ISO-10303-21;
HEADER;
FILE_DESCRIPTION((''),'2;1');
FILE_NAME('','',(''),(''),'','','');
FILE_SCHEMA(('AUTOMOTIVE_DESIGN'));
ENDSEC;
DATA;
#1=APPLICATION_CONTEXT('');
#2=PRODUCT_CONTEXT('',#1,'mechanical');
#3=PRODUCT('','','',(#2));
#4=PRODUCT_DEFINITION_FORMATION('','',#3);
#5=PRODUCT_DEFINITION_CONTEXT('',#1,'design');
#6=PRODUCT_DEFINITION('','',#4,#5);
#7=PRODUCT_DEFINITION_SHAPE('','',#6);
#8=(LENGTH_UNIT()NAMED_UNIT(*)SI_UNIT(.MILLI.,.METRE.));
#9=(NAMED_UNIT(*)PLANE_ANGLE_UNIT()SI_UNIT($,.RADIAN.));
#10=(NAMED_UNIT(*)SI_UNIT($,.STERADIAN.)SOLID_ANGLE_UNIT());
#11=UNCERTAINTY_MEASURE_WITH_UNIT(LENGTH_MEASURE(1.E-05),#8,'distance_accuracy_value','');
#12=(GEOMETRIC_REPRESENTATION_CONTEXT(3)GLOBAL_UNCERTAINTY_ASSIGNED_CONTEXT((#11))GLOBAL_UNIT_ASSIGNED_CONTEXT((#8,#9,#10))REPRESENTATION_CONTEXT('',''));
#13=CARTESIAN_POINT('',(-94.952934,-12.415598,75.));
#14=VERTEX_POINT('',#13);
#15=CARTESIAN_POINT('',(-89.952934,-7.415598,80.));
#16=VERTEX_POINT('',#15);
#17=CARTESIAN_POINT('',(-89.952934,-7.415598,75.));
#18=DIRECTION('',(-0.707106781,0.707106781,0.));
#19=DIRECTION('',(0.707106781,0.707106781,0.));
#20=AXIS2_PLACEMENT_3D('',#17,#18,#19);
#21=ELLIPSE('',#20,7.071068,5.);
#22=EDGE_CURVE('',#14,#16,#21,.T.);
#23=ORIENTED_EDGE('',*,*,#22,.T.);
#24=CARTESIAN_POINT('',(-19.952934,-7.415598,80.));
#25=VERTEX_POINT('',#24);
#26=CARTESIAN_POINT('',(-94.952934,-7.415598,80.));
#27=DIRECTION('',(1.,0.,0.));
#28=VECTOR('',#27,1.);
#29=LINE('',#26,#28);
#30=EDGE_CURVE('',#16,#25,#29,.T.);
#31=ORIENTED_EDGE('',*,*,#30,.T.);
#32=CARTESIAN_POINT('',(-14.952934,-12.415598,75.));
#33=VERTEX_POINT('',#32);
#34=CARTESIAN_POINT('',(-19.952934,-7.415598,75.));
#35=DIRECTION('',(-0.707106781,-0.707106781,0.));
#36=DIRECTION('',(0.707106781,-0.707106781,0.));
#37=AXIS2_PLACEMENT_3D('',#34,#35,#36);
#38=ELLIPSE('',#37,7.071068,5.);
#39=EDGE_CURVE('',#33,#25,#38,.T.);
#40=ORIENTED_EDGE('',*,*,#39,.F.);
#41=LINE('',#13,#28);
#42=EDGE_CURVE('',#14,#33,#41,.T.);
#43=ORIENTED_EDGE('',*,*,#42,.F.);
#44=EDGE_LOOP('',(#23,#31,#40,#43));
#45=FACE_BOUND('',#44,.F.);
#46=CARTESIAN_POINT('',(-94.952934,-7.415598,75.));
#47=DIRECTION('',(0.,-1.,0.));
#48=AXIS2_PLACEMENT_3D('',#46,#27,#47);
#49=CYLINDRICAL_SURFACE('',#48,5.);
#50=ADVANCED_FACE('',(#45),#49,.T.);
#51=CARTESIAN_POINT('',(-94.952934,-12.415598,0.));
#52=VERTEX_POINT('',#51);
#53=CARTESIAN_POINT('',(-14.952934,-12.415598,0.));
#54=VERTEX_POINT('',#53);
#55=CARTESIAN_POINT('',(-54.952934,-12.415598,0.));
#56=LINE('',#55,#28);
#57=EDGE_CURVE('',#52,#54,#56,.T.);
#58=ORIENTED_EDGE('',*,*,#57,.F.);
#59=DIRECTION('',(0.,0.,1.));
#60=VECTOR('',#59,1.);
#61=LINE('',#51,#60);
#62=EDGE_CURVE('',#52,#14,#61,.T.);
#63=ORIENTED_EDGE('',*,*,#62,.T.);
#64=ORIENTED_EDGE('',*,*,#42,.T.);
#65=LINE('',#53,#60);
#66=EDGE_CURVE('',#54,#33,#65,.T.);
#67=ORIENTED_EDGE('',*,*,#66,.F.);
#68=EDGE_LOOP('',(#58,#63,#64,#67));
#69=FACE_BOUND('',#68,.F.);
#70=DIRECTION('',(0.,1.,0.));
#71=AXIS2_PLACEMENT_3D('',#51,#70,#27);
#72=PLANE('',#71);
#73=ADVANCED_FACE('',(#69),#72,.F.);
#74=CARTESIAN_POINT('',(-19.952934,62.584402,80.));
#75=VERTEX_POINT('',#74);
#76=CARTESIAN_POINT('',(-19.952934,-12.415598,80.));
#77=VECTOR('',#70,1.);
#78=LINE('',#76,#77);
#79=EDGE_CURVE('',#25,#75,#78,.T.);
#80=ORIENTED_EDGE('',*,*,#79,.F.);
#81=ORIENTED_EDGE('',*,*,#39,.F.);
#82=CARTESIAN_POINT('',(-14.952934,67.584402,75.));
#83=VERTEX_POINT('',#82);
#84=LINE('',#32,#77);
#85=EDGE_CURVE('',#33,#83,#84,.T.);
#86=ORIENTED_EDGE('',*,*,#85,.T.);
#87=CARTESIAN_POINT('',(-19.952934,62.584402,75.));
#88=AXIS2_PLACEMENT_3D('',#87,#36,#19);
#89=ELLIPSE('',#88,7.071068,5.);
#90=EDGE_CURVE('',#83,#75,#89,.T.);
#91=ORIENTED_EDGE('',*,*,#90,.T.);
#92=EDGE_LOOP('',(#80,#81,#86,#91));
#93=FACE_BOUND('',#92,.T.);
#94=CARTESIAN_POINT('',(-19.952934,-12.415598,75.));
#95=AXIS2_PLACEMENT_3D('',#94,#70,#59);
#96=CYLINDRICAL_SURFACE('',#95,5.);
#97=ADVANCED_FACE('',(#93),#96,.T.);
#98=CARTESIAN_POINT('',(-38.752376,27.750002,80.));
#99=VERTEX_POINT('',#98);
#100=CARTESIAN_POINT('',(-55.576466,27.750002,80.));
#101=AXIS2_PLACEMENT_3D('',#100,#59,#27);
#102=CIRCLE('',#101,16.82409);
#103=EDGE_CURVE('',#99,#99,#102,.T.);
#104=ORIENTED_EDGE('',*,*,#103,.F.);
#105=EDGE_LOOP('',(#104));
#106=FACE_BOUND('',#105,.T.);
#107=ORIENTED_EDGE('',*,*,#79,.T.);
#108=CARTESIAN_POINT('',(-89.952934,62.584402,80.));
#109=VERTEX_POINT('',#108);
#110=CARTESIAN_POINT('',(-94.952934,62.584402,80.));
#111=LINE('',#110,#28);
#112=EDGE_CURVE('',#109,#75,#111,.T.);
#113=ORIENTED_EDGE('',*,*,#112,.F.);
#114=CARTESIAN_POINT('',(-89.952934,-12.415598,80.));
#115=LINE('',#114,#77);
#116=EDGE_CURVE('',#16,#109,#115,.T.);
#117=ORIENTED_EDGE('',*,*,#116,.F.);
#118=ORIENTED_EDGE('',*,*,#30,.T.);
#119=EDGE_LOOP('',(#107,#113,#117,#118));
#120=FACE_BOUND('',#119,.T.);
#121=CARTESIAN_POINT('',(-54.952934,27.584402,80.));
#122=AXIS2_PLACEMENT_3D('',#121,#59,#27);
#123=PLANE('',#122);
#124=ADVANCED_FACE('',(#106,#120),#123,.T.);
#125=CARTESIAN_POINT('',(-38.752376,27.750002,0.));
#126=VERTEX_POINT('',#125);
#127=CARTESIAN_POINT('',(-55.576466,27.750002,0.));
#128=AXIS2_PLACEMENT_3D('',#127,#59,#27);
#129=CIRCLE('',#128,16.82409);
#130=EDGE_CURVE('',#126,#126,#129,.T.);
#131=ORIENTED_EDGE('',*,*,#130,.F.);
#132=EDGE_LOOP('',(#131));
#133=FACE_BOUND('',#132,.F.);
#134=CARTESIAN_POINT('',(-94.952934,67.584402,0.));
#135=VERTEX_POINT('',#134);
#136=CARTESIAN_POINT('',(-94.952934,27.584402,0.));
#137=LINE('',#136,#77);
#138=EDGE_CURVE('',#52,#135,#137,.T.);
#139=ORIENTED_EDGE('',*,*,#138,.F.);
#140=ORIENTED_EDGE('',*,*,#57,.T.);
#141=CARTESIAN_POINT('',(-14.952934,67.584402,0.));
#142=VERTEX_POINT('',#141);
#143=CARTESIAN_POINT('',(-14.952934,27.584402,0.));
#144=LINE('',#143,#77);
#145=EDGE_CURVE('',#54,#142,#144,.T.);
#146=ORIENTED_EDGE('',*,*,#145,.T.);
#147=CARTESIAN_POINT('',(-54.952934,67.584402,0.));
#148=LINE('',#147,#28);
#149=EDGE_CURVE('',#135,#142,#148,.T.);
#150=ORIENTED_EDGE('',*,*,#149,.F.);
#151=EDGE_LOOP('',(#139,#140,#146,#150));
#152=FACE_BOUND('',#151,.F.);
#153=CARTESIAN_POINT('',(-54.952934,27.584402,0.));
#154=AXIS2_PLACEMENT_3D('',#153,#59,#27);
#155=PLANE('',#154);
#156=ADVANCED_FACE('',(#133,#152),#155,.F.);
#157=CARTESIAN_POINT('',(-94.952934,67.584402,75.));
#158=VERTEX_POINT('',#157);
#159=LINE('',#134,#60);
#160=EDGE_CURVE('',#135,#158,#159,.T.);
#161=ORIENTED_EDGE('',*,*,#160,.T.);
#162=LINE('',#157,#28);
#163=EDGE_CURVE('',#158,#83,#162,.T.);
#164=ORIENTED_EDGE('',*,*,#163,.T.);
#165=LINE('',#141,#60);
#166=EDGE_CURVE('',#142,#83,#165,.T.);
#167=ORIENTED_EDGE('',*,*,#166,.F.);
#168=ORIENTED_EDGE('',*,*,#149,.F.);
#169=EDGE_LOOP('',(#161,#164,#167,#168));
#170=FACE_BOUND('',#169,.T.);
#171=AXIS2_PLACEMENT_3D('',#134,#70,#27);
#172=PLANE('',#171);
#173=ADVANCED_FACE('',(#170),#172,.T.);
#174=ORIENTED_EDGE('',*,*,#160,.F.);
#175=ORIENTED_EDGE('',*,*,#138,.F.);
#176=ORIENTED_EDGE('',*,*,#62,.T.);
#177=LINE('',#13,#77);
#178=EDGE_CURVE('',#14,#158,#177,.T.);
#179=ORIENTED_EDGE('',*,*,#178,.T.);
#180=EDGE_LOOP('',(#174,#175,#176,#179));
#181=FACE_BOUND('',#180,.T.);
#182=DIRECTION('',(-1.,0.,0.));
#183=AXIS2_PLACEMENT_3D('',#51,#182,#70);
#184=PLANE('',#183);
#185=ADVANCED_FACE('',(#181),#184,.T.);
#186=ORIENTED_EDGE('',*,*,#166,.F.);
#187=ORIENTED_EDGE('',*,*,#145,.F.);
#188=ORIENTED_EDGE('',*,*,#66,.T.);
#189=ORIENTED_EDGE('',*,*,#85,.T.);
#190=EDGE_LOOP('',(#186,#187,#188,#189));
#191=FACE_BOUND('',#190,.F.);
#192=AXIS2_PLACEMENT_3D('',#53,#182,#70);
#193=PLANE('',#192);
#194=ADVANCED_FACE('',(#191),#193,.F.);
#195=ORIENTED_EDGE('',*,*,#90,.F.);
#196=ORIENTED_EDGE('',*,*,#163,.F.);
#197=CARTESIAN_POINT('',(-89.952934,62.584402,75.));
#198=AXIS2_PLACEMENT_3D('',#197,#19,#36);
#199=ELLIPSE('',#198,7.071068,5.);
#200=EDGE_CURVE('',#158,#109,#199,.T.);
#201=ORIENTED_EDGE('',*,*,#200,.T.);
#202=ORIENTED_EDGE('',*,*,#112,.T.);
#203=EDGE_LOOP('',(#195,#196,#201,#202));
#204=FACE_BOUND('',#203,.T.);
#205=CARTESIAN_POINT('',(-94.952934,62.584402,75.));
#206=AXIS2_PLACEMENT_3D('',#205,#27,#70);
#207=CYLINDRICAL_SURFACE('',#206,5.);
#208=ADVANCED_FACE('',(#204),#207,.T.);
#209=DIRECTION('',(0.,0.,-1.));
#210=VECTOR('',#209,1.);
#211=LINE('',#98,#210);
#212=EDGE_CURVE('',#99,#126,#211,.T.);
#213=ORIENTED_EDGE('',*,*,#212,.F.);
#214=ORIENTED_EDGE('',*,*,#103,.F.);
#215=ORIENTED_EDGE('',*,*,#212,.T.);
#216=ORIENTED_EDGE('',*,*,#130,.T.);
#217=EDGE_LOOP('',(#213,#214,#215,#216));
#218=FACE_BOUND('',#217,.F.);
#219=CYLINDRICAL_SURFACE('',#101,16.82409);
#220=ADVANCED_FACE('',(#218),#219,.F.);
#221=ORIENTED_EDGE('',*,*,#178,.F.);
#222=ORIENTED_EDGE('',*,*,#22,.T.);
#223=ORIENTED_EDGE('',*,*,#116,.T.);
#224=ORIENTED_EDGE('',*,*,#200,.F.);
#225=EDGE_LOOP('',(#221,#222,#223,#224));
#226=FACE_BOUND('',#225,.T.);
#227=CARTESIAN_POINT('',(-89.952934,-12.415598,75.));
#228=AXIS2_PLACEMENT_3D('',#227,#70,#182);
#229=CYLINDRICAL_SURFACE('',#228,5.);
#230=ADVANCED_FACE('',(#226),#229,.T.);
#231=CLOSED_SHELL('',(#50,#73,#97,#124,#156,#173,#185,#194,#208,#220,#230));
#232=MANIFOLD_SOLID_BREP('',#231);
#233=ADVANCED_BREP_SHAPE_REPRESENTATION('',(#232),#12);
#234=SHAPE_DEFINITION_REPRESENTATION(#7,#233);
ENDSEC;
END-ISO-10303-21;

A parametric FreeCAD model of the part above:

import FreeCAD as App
import Part
import Sketcher
from FreeCAD import Vector


def edges_at(feature, points):
    """Names of the edges that pass closest to the given points."""
    edges = feature.Shape.Edges
    near = lambda p: min(range(len(edges)), key=lambda i: edges[i].distToShape(Part.Vertex(*p))[0])
    return sorted({f"Edge{near(p) + 1}" for p in points})

doc = App.newDocument("Part")
body = doc.addObject("PartDesign::Body", "Body")

sketch1 = body.newObject("Sketcher::SketchObject", "Sketch")
sketch1.AttachmentSupport = (doc.getObject("XY_Plane"), [""])
sketch1.MapMode = "FlatFace"
sketch1.addGeometry([
    Part.LineSegment(Vector(-94.952934, 67.584402, 0), Vector(-94.952934, -12.415598, 0)),
    Part.LineSegment(Vector(-94.952934, -12.415598, 0), Vector(-14.952934, -12.415598, 0)),
    Part.LineSegment(Vector(-14.952934, -12.415598, 0), Vector(-14.952934, 67.584402, 0)),
    Part.LineSegment(Vector(-14.952934, 67.584402, 0), Vector(-94.952934, 67.584402, 0)),
], False)
sketch1.addConstraint([
    Sketcher.Constraint("Coincident", 0, 2, 1, 1),
    Sketcher.Constraint("Coincident", 1, 2, 2, 1),
    Sketcher.Constraint("Coincident", 2, 2, 3, 1),
    Sketcher.Constraint("Coincident", 3, 2, 0, 1),
    Sketcher.Constraint("Vertical", 0),
    Sketcher.Constraint("Horizontal", 1),
    Sketcher.Constraint("Vertical", 2),
    Sketcher.Constraint("Horizontal", 3),
    Sketcher.Constraint("Equal", 3, 0),
    Sketcher.Constraint("DistanceX", 1, 1, 1, 2, 80.0),
    Sketcher.Constraint("DistanceY", -1, 1, 2, 2, 67.584402),
    Sketcher.Constraint("DistanceX", 0, 2, -1, 1, 94.952934),
])
pad1 = body.newObject("PartDesign::Pad", "Pad")
pad1.Profile = sketch1
pad1.Length = 80

sketch2 = body.newObject("Sketcher::SketchObject", "Sketch001")
sketch2.AttachmentSupport = (doc.getObject("XY_Plane"), [""])
sketch2.MapMode = "FlatFace"
sketch2.AttachmentOffset = App.Placement(Vector(0, 0, 80), App.Rotation())
sketch2.addGeometry(Part.Circle(Vector(-55.576466, 27.750002, 0), Vector(0, 0, 1), 16.82409), False)
sketch2.addConstraint([
    Sketcher.Constraint("Diameter", 0, 33.64818),
    Sketcher.Constraint("DistanceY", -1, 1, 0, 3, 27.750002),
    Sketcher.Constraint("DistanceX", 0, 3, -1, 1, 55.576466),
])
pocket1 = body.newObject("PartDesign::Pocket", "Pocket")
pocket1.Profile = sketch2
pocket1.Type = "ThroughAll"
doc.recompute()

fillet = body.newObject("PartDesign::Fillet", "Fillet")
fillet.Base = (pocket1, edges_at(pocket1, [
    (-54.953, 67.584, 80),
    (-94.953, 27.584, 80),
    (-54.953, -12.416, 80),
    (-14.953, 27.584, 80),
]))
fillet.Radius = 5

doc.recompute()
